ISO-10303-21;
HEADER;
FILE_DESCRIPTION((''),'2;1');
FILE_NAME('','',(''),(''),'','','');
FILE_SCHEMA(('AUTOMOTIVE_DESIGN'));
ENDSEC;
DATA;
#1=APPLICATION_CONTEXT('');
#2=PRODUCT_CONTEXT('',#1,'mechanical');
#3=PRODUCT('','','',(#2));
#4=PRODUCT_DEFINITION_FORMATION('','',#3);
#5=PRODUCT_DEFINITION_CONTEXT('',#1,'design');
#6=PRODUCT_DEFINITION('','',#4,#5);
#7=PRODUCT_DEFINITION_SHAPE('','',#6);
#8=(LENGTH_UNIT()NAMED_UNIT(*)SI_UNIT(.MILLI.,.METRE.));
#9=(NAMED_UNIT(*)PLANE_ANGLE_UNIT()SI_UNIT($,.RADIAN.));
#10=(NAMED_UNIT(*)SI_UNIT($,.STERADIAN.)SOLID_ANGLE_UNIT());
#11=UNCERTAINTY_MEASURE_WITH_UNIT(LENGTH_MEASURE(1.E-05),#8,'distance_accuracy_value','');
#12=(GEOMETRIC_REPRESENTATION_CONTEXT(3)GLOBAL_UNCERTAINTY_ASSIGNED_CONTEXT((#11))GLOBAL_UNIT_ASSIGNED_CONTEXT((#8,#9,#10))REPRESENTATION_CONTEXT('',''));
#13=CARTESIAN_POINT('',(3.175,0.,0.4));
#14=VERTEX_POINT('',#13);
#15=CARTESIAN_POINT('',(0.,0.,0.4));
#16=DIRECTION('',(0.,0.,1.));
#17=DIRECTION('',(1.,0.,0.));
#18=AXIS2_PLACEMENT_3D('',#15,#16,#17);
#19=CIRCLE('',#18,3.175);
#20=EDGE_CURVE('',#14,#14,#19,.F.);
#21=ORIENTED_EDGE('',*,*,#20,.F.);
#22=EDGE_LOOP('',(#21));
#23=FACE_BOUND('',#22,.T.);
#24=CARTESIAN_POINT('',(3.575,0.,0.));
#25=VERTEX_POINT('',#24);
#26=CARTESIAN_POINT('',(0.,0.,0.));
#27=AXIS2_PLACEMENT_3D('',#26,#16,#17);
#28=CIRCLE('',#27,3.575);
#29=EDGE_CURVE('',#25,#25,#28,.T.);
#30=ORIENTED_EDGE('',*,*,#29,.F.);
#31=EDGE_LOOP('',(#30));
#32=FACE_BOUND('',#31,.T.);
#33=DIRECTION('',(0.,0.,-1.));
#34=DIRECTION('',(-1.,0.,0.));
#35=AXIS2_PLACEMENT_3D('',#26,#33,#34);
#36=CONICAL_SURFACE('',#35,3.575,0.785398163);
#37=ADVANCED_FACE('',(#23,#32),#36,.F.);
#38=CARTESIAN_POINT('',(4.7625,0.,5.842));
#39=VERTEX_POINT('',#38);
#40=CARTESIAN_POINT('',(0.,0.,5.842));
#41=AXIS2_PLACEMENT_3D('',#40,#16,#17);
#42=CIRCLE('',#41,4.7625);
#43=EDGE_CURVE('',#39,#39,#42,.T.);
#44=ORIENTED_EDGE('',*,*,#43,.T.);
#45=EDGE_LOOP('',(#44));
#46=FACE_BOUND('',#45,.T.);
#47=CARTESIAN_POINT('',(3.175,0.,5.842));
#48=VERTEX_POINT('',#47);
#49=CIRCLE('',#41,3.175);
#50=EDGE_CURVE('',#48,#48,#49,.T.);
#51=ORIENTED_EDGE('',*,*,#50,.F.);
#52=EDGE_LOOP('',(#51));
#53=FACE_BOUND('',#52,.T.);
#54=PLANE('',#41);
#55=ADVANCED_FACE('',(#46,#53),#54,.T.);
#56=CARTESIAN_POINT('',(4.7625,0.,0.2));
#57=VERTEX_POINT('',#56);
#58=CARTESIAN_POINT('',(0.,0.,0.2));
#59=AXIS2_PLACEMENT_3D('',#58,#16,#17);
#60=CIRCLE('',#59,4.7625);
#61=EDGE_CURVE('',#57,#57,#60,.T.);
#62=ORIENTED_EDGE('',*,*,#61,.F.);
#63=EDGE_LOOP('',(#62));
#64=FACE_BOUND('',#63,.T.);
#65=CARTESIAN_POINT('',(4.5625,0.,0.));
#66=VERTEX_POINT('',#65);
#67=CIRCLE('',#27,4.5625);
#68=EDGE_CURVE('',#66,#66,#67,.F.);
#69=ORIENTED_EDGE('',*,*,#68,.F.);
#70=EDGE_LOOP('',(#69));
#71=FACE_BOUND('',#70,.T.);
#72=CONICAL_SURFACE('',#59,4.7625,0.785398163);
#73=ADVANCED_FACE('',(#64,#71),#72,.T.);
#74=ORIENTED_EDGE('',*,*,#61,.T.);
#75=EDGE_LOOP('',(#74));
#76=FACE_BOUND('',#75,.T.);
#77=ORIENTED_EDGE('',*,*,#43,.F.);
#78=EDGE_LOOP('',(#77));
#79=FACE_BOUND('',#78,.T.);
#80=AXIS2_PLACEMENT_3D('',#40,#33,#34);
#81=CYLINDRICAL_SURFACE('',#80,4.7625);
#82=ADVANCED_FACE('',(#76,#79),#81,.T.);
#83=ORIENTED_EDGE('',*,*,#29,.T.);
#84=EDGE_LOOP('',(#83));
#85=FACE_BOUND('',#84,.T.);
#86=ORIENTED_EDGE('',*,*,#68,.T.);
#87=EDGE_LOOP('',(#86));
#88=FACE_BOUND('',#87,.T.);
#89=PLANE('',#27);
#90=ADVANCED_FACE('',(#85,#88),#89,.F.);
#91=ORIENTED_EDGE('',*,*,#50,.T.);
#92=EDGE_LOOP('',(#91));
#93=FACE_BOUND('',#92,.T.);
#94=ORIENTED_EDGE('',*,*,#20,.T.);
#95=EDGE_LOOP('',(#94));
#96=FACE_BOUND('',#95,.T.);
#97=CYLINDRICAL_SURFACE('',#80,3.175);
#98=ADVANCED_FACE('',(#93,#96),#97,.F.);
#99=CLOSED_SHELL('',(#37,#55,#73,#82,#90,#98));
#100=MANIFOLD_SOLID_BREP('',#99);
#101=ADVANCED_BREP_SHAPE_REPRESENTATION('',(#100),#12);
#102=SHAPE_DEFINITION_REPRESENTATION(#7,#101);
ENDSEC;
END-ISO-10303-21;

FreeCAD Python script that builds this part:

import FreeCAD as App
import Part
import Sketcher
Q = App.Units.Quantity


def edges_at(feature, points):
    """Names of the edges that pass closest to the given points."""
    edges = feature.Shape.Edges
    near = lambda p: min(range(len(edges)), key=lambda i: edges[i].distToShape(Part.Vertex(*p))[0])
    return sorted({f"Edge{near(p) + 1}" for p in points})

doc = App.newDocument("Part")
body = doc.addObject("PartDesign::Body", "Body")

sketch1 = doc.addObject("Sketcher::SketchObject", "Sketch")
body.addObject(sketch1)
sketch1.AttachmentSupport = (doc.XY_Plane, [""])
sketch1.MapMode = "FlatFace"
sketch1.addGeometry([
    Part.Circle(App.Vector(0, 0, 0), App.Vector(0, 0, 1), 4.7625),
    Part.Circle(App.Vector(0, 0, 0), App.Vector(0, 0, 1), 3.175),
], False)
sketch1.addConstraint([
    Sketcher.Constraint("Coincident", 0, 3, -1, 1),
    Sketcher.Constraint("Coincident", 1, 3, -1, 1),
    Sketcher.Constraint("Diameter", 1, Q("0.25 in")),
    Sketcher.Constraint("Diameter", 0, Q("0.375 in")),
])
pad1 = doc.addObject("PartDesign::Pad", "Pad")
body.addObject(pad1)
pad1.Profile = sketch1
pad1.Length = Q("0.23 in")
doc.recompute()

chamfer = doc.addObject("PartDesign::Chamfer", "Chamfer")
body.addObject(chamfer)
chamfer.Base = (pad1, edges_at(pad1, [(-3.175, 0, 0)]))
chamfer.Size = 0.4
doc.recompute()

chamfer2 = doc.addObject("PartDesign::Chamfer", "Chamfer001")
body.addObject(chamfer2)
chamfer2.Base = (chamfer, edges_at(chamfer, [(-4.763, 0, 0)]))
chamfer2.Size = 0.2

doc.recompute()
